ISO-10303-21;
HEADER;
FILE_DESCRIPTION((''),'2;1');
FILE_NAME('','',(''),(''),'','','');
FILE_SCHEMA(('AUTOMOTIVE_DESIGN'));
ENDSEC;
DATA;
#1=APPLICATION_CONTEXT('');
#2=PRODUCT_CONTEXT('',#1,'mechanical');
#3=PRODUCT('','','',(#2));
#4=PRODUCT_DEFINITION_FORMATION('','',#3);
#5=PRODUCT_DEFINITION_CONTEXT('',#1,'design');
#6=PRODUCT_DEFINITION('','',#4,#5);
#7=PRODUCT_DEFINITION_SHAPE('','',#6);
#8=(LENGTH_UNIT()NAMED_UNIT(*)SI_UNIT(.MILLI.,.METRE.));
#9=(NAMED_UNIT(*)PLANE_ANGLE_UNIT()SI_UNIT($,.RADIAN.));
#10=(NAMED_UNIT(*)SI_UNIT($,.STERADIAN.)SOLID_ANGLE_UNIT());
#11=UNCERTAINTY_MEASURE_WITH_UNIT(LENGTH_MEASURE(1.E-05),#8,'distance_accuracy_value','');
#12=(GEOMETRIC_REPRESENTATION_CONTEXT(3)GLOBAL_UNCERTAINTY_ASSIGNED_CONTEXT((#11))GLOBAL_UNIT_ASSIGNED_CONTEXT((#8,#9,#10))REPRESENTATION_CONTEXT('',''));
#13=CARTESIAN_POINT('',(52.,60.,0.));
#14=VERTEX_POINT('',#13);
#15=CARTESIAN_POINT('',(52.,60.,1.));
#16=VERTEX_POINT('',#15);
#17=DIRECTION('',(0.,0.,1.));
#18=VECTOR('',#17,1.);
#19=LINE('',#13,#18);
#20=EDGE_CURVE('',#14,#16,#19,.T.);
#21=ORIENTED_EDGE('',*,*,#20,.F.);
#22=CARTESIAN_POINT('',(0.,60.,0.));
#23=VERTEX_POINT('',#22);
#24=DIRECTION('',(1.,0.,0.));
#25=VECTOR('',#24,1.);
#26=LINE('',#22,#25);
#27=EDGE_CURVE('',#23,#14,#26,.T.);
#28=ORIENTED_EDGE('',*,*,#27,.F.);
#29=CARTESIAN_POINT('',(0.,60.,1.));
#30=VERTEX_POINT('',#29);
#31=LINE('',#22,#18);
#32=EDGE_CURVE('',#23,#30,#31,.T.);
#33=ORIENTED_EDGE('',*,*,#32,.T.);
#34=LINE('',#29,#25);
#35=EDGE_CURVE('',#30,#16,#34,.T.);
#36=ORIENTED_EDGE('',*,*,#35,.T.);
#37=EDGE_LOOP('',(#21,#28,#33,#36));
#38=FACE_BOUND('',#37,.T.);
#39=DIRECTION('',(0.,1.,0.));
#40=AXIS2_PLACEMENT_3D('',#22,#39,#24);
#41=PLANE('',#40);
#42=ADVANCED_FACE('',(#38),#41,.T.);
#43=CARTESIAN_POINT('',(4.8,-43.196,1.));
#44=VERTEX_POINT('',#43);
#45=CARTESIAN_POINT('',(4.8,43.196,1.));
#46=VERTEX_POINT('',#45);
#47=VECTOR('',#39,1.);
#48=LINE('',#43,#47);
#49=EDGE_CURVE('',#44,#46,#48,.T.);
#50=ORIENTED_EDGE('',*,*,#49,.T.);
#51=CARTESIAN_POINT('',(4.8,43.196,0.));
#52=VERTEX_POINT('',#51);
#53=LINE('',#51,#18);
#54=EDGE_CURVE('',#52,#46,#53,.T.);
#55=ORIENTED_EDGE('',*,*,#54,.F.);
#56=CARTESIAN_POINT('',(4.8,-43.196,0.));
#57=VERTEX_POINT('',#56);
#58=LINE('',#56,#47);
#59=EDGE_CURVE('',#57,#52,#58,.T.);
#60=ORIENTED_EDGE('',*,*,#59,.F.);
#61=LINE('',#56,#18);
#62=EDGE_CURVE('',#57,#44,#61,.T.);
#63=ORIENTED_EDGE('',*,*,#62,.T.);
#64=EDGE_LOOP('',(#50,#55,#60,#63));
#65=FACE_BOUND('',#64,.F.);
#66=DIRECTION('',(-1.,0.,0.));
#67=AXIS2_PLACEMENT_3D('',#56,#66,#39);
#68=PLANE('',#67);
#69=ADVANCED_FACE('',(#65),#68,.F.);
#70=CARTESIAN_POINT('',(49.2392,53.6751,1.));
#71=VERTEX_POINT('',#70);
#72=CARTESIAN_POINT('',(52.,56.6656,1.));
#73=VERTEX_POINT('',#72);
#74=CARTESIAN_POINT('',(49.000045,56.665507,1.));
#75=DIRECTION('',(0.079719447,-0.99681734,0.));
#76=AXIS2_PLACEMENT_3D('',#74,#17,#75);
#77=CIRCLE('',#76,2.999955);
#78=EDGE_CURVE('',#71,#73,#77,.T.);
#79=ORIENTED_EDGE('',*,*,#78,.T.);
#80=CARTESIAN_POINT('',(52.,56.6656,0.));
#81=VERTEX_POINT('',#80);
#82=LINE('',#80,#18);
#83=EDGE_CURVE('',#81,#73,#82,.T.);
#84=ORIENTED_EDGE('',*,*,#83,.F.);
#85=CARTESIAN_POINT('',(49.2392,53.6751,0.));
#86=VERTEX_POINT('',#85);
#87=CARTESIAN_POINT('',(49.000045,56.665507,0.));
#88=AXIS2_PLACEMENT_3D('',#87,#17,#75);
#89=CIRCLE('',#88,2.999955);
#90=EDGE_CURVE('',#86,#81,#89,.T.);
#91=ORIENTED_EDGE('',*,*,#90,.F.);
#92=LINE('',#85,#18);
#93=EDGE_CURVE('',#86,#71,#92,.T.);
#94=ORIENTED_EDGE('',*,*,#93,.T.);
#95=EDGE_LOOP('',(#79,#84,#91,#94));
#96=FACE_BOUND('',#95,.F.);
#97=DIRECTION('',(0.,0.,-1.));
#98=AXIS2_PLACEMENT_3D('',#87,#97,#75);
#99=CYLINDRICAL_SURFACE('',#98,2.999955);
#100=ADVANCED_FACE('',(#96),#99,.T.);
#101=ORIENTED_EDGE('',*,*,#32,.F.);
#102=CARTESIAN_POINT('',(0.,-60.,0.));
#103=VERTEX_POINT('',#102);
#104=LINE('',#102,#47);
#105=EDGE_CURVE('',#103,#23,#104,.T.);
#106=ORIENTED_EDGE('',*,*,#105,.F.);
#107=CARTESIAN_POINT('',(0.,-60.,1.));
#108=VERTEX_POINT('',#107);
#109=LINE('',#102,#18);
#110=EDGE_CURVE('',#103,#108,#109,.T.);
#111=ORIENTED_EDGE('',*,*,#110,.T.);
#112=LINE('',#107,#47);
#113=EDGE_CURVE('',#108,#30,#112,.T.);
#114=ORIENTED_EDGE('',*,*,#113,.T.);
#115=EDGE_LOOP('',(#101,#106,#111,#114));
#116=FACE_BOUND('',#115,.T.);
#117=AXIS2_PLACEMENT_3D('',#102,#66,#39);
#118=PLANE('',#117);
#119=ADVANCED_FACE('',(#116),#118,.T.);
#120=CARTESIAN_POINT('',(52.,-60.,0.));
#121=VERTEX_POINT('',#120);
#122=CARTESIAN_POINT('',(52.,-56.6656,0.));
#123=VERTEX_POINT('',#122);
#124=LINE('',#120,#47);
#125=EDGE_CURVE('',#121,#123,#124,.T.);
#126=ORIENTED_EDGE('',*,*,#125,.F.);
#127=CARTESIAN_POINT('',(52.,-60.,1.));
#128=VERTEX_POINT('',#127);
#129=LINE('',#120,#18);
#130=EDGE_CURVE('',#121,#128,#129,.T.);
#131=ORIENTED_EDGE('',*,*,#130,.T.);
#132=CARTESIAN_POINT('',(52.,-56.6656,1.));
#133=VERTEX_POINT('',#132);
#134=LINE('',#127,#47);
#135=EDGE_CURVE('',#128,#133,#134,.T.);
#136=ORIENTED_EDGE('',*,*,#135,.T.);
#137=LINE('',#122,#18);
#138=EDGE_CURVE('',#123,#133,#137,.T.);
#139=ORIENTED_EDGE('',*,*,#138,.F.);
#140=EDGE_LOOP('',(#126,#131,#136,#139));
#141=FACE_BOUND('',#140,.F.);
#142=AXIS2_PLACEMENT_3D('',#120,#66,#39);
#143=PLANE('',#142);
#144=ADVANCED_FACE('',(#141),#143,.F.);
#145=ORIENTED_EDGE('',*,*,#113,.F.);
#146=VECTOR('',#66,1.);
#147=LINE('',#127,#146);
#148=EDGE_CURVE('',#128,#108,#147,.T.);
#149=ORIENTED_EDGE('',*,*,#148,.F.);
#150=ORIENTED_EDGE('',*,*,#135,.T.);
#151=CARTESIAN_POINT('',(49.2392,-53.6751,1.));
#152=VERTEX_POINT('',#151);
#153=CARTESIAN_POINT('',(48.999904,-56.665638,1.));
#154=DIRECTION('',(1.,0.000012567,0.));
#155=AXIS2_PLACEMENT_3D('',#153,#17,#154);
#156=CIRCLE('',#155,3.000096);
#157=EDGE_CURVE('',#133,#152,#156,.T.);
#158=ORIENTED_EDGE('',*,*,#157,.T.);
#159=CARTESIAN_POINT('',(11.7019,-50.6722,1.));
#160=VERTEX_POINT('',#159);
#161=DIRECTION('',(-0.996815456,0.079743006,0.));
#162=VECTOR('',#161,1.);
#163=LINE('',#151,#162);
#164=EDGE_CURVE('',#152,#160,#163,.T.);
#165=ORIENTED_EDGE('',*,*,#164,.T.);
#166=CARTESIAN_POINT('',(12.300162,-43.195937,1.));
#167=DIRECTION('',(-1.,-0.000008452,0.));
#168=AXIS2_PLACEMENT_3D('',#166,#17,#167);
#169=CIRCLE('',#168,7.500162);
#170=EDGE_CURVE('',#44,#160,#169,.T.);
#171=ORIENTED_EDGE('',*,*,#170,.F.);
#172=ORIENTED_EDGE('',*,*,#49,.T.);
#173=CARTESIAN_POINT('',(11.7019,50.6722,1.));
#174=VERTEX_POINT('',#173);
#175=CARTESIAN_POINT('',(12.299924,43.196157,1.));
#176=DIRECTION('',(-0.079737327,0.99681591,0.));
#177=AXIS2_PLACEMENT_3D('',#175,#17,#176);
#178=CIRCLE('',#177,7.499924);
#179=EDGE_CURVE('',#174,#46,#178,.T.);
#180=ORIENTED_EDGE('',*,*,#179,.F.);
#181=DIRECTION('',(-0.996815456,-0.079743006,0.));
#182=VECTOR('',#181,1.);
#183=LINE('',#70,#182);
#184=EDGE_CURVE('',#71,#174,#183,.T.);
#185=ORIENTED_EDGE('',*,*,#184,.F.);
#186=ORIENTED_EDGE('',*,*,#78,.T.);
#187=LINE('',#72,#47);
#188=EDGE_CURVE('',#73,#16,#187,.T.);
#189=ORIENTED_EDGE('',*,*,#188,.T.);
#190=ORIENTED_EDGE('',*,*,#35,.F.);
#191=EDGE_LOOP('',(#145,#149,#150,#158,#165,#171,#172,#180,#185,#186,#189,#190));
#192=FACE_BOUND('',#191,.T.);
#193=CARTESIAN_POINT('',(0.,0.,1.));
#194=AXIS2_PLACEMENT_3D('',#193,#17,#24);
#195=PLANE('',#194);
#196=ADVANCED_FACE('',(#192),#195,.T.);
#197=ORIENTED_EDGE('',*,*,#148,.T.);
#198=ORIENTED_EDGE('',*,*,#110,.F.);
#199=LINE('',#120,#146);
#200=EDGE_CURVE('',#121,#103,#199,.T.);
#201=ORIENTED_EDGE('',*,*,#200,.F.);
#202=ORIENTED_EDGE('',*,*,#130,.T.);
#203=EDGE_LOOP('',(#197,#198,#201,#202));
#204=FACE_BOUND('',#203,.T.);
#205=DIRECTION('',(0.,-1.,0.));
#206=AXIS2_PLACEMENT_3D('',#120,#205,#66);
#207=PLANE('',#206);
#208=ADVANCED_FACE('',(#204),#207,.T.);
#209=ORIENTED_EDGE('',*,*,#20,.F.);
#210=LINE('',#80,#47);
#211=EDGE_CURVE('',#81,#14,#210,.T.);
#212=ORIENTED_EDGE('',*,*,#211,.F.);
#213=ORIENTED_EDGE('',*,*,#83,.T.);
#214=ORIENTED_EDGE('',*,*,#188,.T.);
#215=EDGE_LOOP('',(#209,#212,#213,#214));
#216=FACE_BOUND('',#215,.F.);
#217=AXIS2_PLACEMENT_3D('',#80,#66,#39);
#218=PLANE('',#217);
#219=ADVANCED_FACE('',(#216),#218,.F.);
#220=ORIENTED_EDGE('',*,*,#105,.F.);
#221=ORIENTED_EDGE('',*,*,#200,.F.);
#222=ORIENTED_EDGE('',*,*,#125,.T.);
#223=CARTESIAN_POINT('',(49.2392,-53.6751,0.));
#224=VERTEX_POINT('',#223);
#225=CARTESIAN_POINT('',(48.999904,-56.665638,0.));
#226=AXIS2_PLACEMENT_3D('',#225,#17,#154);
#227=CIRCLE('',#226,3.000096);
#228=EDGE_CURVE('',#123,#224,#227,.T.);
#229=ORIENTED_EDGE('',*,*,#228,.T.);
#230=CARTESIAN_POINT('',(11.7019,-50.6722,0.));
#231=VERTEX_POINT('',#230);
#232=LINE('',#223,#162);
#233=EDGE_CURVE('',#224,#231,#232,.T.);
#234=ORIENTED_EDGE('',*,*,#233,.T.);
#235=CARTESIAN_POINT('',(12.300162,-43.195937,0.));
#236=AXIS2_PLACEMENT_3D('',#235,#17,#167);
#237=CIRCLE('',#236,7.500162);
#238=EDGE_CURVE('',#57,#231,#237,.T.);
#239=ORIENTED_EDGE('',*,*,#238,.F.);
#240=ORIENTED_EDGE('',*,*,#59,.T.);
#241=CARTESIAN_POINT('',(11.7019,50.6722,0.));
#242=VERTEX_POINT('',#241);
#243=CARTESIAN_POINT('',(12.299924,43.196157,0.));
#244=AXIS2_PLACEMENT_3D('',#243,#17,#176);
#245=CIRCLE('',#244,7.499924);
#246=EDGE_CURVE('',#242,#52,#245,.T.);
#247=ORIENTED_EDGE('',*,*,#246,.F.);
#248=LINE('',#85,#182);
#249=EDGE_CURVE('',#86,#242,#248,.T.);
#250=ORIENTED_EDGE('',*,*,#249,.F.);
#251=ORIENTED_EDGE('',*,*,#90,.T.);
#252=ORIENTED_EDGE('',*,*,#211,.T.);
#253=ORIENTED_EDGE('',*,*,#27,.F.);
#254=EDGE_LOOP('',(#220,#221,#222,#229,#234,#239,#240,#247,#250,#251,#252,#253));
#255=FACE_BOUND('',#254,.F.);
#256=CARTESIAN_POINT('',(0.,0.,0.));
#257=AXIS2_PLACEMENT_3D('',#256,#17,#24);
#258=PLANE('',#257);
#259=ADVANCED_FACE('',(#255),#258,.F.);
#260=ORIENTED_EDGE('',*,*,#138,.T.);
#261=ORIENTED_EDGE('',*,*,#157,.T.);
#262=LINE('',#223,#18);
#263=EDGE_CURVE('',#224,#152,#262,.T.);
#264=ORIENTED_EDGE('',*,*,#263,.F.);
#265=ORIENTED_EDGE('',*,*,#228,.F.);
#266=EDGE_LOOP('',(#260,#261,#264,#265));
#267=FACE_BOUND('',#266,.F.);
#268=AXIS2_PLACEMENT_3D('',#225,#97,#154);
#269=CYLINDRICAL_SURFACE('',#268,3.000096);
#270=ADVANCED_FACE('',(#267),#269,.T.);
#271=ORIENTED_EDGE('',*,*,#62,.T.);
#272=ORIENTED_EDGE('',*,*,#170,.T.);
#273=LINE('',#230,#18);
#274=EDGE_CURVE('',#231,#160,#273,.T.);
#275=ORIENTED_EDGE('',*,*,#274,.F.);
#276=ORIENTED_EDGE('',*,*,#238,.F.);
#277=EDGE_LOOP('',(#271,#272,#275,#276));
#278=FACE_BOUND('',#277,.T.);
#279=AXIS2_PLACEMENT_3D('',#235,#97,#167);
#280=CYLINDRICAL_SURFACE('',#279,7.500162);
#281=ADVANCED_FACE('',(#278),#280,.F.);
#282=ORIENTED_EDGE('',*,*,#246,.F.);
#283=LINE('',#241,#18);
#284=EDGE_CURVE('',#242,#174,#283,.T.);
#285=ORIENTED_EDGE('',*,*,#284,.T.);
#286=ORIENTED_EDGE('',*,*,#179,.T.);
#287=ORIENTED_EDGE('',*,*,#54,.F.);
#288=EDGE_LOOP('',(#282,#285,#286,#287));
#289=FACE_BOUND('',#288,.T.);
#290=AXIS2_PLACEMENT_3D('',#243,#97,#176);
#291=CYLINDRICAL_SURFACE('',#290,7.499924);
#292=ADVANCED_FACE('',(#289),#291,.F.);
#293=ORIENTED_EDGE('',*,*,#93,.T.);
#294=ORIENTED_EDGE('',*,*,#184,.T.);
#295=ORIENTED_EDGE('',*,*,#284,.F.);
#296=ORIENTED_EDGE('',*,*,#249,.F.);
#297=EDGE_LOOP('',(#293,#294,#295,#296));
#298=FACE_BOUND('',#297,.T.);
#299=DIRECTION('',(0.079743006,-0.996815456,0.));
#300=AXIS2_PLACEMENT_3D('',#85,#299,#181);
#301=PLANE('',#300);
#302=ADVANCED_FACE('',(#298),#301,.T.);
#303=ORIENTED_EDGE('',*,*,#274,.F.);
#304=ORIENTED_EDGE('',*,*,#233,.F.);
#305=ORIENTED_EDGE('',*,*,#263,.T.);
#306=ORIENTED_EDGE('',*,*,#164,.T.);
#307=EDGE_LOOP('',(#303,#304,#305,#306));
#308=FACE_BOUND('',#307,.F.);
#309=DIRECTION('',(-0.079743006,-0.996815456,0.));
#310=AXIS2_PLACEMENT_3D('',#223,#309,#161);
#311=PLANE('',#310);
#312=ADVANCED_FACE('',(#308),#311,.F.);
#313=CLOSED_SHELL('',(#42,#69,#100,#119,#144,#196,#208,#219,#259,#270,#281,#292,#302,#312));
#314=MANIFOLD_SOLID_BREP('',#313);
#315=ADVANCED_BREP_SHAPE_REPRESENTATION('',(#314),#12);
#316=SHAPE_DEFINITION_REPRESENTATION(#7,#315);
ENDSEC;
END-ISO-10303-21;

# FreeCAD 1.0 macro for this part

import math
import FreeCAD as App
import Part
import Sketcher

V = App.Vector

doc = App.newDocument("Part")
body = doc.addObject("PartDesign::Body", "Body")

# Sketch on XY plane
sketch1 = body.newObject("Sketcher::SketchObject", "Sketch")
sketch1.AttachmentSupport = (doc.getObject("XY_Plane"), [""])
sketch1.MapMode = "FlatFace"
sketch1.addGeometry([
    Part.LineSegment(V(0, -60, 0), V(52, -60, 0)),  # 0
    Part.LineSegment(V(52, -60, 0), V(52, -56.6656, 0)),  # 1
    Part.ArcOfCircle(Part.Circle(V(49, -56.6656, 0), V(0, 0, 1), 3), math.radians(0), math.radians(85.42684)),  # 2
    Part.LineSegment(V(49.2392, -53.6751, 0), V(11.7019, -50.6722, 0)),  # 3
    Part.ArcOfCircle(Part.Circle(V(12.3, -43.196, 0), V(0, 0, 1), 7.5), math.radians(180), math.radians(265.426048)),  # 4
    Part.LineSegment(V(4.8, -43.196, 0), V(4.8, 43.196, 0)),  # 5
    Part.ArcOfCircle(Part.Circle(V(12.3, 43.196, 0), V(0, 0, 1), 7.500086), math.radians(94.573952), math.radians(180)),  # 6
    Part.LineSegment(V(11.7019, 50.6722, 0), V(49.2392, 53.6751, 0)),  # 7
    Part.ArcOfCircle(Part.Circle(V(49, 56.6656, 0), V(0, 0, 1), 3.000051), math.radians(-85.42684), math.radians(0)),  # 8
    Part.LineSegment(V(52, 56.6656, 0), V(52, 60, 0)),  # 9
    Part.LineSegment(V(52, 60, 0), V(0, 60, 0)),  # 10
    Part.LineSegment(V(0, 60, 0), V(0, -60, 0)),  # 11
], False)
sketch1.addConstraint([
    Sketcher.Constraint("Coincident", 0, 2, 1, 1),
    Sketcher.Constraint("Tangent", 1, 2, 2, 1),
    Sketcher.Constraint("Tangent", 2, 2, 3, 1),
    Sketcher.Constraint("Tangent", 3, 2, 4, 2),
    Sketcher.Constraint("Tangent", 4, 1, 5, 1),
    Sketcher.Constraint("Tangent", 5, 2, 6, 2),
    Sketcher.Constraint("Tangent", 6, 1, 7, 1),
    Sketcher.Constraint("Tangent", 7, 2, 8, 1),
    Sketcher.Constraint("Tangent", 8, 2, 9, 1),
    Sketcher.Constraint("Coincident", 9, 2, 10, 1),
    Sketcher.Constraint("Coincident", 10, 2, 11, 1),
    Sketcher.Constraint("Coincident", 11, 2, 0, 1),
    Sketcher.Constraint("Horizontal", 0),
    Sketcher.Constraint("Vertical", 1),
    Sketcher.Constraint("Vertical", 5),
    Sketcher.Constraint("Vertical", 9),
    Sketcher.Constraint("Horizontal", 10),
    Sketcher.Constraint("Vertical", 11),
    Sketcher.Constraint("Equal", 4, 6),
    Sketcher.Constraint("Equal", 2, 8),
    Sketcher.Constraint("Symmetric", 10, 2, 11, 2, -1, 1),
    Sketcher.Constraint("Symmetric", 2, 3, 8, 3, -1),
    Sketcher.Constraint("Vertical", 3, 2, 6, 1),
    Sketcher.Constraint("Radius", 2, 3.0),
    Sketcher.Constraint("Radius", 4, 7.5),
    Sketcher.Constraint("DistanceX", 0, 1, 0, 2, 52.0),
    Sketcher.Constraint("DistanceY", 11, 2, 11, 1, 120.0),
    Sketcher.Constraint("DistanceX", -1, 1, 4, 1, 4.8),
    Sketcher.Constraint("DistanceY", 5, 1, 5, 2, 86.392),
    Sketcher.Constraint("DistanceY", 1, 1, 1, 2, 3.3344),
])
pad1 = body.newObject("PartDesign::Pad", "Pad")
pad1.Profile = sketch1
pad1.Length = 1

doc.recompute()
